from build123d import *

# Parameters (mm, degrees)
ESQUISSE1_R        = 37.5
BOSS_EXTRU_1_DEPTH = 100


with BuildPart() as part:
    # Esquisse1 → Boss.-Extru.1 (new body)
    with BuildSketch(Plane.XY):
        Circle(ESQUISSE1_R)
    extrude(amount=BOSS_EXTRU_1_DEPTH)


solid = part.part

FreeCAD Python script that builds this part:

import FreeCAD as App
import Part
import Sketcher
from FreeCAD import Vector

doc = App.newDocument("Part")
body = doc.addObject("PartDesign::Body", "Body")

# Sketch on XY plane
sketch1 = doc.addObject("Sketcher::SketchObject", "Sketch")
body.addObject(sketch1)
sketch1.AttachmentSupport = (doc.XY_Plane, [""])
sketch1.MapMode = "FlatFace"
sketch1.addGeometry(Part.Circle(Vector(0, 0, 0), Vector(0, 0, 1), 38), False)
sketch1.addConstraint([
    Sketcher.Constraint("Coincident", 0, 3, -1, 1),
    Sketcher.Constraint("Diameter", 0, 75.0),
])
pad1 = doc.addObject("PartDesign::Pad", "Pad")
body.addObject(pad1)
pad1.Profile = sketch1
pad1.Length = 100

doc.recompute()
